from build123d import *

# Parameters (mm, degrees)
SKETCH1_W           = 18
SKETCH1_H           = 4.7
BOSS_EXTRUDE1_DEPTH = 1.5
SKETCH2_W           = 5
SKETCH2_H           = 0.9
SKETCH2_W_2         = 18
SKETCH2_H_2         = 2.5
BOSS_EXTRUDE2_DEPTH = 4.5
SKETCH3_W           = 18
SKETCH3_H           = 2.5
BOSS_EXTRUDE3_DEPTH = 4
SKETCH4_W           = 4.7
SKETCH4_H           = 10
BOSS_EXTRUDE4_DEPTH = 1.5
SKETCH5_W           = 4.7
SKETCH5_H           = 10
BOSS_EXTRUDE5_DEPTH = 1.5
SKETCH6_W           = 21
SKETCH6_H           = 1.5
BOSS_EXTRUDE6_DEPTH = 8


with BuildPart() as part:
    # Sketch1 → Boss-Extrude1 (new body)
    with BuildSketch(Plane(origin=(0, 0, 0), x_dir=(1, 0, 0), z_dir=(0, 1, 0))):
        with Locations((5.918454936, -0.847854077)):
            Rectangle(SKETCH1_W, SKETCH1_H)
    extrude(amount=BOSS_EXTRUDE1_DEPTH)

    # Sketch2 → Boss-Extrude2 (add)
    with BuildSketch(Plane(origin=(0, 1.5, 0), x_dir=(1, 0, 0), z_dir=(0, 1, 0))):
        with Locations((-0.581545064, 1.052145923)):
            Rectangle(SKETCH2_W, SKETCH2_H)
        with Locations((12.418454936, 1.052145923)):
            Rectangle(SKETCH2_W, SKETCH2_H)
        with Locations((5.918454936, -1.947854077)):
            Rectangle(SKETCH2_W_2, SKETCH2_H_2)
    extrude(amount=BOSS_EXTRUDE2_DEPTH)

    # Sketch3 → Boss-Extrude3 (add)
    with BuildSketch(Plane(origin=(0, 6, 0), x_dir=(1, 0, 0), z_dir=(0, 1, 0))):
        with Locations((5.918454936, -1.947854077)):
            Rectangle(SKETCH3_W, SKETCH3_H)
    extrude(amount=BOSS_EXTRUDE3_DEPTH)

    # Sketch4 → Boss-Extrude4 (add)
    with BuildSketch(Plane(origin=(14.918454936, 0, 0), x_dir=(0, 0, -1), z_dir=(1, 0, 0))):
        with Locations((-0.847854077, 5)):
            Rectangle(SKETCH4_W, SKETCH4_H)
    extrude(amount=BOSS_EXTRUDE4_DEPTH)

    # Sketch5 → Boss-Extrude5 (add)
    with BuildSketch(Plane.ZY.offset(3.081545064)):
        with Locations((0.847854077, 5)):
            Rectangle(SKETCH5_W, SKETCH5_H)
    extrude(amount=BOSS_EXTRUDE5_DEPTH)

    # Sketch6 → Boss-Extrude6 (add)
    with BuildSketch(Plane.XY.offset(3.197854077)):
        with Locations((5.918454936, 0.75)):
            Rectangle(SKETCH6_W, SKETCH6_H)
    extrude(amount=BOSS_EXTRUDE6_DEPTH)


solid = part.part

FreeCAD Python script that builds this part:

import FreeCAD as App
import Part
import Sketcher


def add_polygon(sketch, points):
    """Adds a closed chain of lines whose ends are joined by coincident constraints."""
    first, n = sketch.GeometryCount, len(points)
    for a, b in zip(points, points[1:] + points[:1]):
        sketch.addGeometry(Part.LineSegment(App.Vector(*a, 0), App.Vector(*b, 0)), False)
    for i in range(n):
        sketch.addConstraint(Sketcher.Constraint("Coincident", first + i, 2, first + (i + 1) % n, 1))

doc = App.newDocument("Part")
body = doc.addObject("PartDesign::Body", "Body")

# Sketch on XZ plane
sketch1 = body.newObject("Sketcher::SketchObject", "Sketch")
sketch1.AttachmentSupport = (doc.getObject("XZ_Plane"), [""])
sketch1.MapMode = "FlatFace"
add_polygon(sketch1, [(-3.1, -1.5), (-3.1, 3.2), (14.9, 3.2), (14.9, -1.5)])  # lines 0-3
sketch1.addConstraint([
    Sketcher.Constraint("Vertical", 0),
    Sketcher.Constraint("Horizontal", 1),
    Sketcher.Constraint("Vertical", 2),
    Sketcher.Constraint("Horizontal", 3),
    Sketcher.Constraint("DistanceX", 1, 1, 1, 2, 18.0),
    Sketcher.Constraint("DistanceY", 0, 1, 0, 2, 4.7),
    Sketcher.Constraint("DistanceX", 0, 2, -1, 1, 3.081545),
    Sketcher.Constraint("DistanceY", -1, 1, 0, 2, 3.197854),
])
pad1 = body.newObject("PartDesign::Pad", "Pad")
pad1.Profile = sketch1
pad1.Length = 1.5
pad1.Reversed = True

# Sketch on XZ plane
sketch2 = body.newObject("Sketcher::SketchObject", "Sketch001")
sketch2.AttachmentSupport = (doc.getObject("XZ_Plane"), [""])
sketch2.MapMode = "FlatFace"
sketch2.AttachmentOffset = App.Placement(App.Vector(0, 0, -1.5), App.Rotation())
add_polygon(sketch2, [(-3.1, -1.5), (-3.1, -0.6), (1.9, -0.6), (1.9, -1.5)])  # lines 0-3
add_polygon(sketch2, [(9.9, -1.5), (9.9, -0.6), (14.9, -0.6), (14.9, -1.5)])  # lines 4-7
add_polygon(sketch2, [(-3.1, 0.7), (-3.1, 3.2), (14.9, 3.2), (14.9, 0.7)])  # lines 8-11
sketch2.addConstraint([
    Sketcher.Constraint("Vertical", 0),
    Sketcher.Constraint("Horizontal", 1),
    Sketcher.Constraint("Vertical", 2),
    Sketcher.Constraint("Horizontal", 3),
    Sketcher.Constraint("Vertical", 4),
    Sketcher.Constraint("Horizontal", 5),
    Sketcher.Constraint("Vertical", 6),
    Sketcher.Constraint("Horizontal", 7),
    Sketcher.Constraint("Vertical", 8),
    Sketcher.Constraint("Horizontal", 9),
    Sketcher.Constraint("Vertical", 10),
    Sketcher.Constraint("Horizontal", 11),
    Sketcher.Constraint("Horizontal", 1, 2, 4, 2),
    Sketcher.Constraint("Horizontal", 3, 2, 6, 2),
    Sketcher.Constraint("Vertical", 3, 2, 8, 2),
    Sketcher.Constraint("Vertical", 6, 2, 9, 2),
    Sketcher.Constraint("Equal", 3, 5),
    Sketcher.Constraint("DistanceX", 1, 1, 1, 2, 5.0),
    Sketcher.Constraint("DistanceX", 9, 1, 9, 2, 18.0),
    Sketcher.Constraint("DistanceY", 0, 1, 0, 2, 0.9),
    Sketcher.Constraint("DistanceY", 8, 1, 8, 2, 2.5),
    Sketcher.Constraint("DistanceY", 0, 2, 8, 2, 3.8),
    Sketcher.Constraint("DistanceX", 0, 2, -1, 1, 3.081545),
    Sketcher.Constraint("DistanceY", 0, 2, -1, 1, 0.602146),
])
pad2 = body.newObject("PartDesign::Pad", "Pad001")
pad2.Profile = sketch2
pad2.Length = 4.5
pad2.Reversed = True

# Sketch on XZ plane
sketch3 = body.newObject("Sketcher::SketchObject", "Sketch002")
sketch3.AttachmentSupport = (doc.getObject("XZ_Plane"), [""])
sketch3.MapMode = "FlatFace"
sketch3.AttachmentOffset = App.Placement(App.Vector(0, 0, -6), App.Rotation())
add_polygon(sketch3, [(-3.1, 0.7), (-3.1, 3.2), (14.9, 3.2), (14.9, 0.7)])  # lines 0-3
sketch3.addConstraint([
    Sketcher.Constraint("Vertical", 0),
    Sketcher.Constraint("Horizontal", 1),
    Sketcher.Constraint("Vertical", 2),
    Sketcher.Constraint("Horizontal", 3),
    Sketcher.Constraint("DistanceX", 1, 1, 1, 2, 18.0),
    Sketcher.Constraint("DistanceY", 0, 1, 0, 2, 2.5),
    Sketcher.Constraint("DistanceX", 0, 2, -1, 1, 3.081545),
    Sketcher.Constraint("DistanceY", -1, 1, 0, 2, 3.197854),
])
pad3 = body.newObject("PartDesign::Pad", "Pad002")
pad3.Profile = sketch3
pad3.Length = 4
pad3.Reversed = True

# Sketch on YZ plane
sketch4 = body.newObject("Sketcher::SketchObject", "Sketch003")
sketch4.AttachmentSupport = (doc.getObject("YZ_Plane"), [""])
sketch4.MapMode = "FlatFace"
sketch4.AttachmentOffset = App.Placement(App.Vector(0, 0, 14.918455), App.Rotation())
add_polygon(sketch4, [(10, 3.2), (0, 3.2), (0, -1.5), (10, -1.5)])  # lines 0-3
sketch4.addConstraint([
    Sketcher.Constraint("Horizontal", 0),
    Sketcher.Constraint("Vertical", 1),
    Sketcher.Constraint("Horizontal", 2),
    Sketcher.Constraint("Vertical", 3),
    Sketcher.Constraint("PointOnObject", 0, 2, -2),
    Sketcher.Constraint("DistanceX", 0, 2, 0, 1, 10.0),
    Sketcher.Constraint("DistanceY", 1, 2, 1, 1, 4.7),
    Sketcher.Constraint("DistanceY", -1, 1, 0, 2, 3.197854),
])
pad4 = body.newObject("PartDesign::Pad", "Pad003")
pad4.Profile = sketch4
pad4.Length = 1.5

# Sketch on YZ plane
sketch5 = body.newObject("Sketcher::SketchObject", "Sketch004")
sketch5.AttachmentSupport = (doc.getObject("YZ_Plane"), [""])
sketch5.MapMode = "FlatFace"
sketch5.AttachmentOffset = App.Placement(App.Vector(0, 0, -3.081545), App.Rotation())
add_polygon(sketch5, [(10, -1.5), (0, -1.5), (0, 3.2), (10, 3.2)])  # lines 0-3
sketch5.addConstraint([
    Sketcher.Constraint("Horizontal", 0),
    Sketcher.Constraint("Vertical", 1),
    Sketcher.Constraint("Horizontal", 2),
    Sketcher.Constraint("Vertical", 3),
    Sketcher.Constraint("PointOnObject", 0, 2, -2),
    Sketcher.Constraint("DistanceX", 0, 2, 0, 1, 10.0),
    Sketcher.Constraint("DistanceY", 1, 1, 1, 2, 4.7),
    Sketcher.Constraint("DistanceY", 0, 2, -1, 1, 1.502146),
])
pad5 = body.newObject("PartDesign::Pad", "Pad004")
pad5.Profile = sketch5
pad5.Length = 1.5
pad5.Reversed = True

# Sketch on XY plane
sketch6 = body.newObject("Sketcher::SketchObject", "Sketch005")
sketch6.AttachmentSupport = (doc.getObject("XY_Plane"), [""])
sketch6.MapMode = "FlatFace"
sketch6.AttachmentOffset = App.Placement(App.Vector(0, 0, 3.197854), App.Rotation())
add_polygon(sketch6, [(-4.6, 1.5), (-4.6, 0), (16.4, 0), (16.4, 1.5)])  # lines 0-3
sketch6.addConstraint([
    Sketcher.Constraint("Vertical", 0),
    Sketcher.Constraint("Horizontal", 1),
    Sketcher.Constraint("Vertical", 2),
    Sketcher.Constraint("Horizontal", 3),
    Sketcher.Constraint("PointOnObject", 0, 2, -1),
    Sketcher.Constraint("DistanceX", 1, 1, 1, 2, 21.0),
    Sketcher.Constraint("DistanceY", 0, 2, 0, 1, 1.5),
    Sketcher.Constraint("DistanceX", 0, 2, -1, 1, 4.581545),
])
pad6 = body.newObject("PartDesign::Pad", "Pad005")
pad6.Profile = sketch6
pad6.Length = 8

doc.recompute()
